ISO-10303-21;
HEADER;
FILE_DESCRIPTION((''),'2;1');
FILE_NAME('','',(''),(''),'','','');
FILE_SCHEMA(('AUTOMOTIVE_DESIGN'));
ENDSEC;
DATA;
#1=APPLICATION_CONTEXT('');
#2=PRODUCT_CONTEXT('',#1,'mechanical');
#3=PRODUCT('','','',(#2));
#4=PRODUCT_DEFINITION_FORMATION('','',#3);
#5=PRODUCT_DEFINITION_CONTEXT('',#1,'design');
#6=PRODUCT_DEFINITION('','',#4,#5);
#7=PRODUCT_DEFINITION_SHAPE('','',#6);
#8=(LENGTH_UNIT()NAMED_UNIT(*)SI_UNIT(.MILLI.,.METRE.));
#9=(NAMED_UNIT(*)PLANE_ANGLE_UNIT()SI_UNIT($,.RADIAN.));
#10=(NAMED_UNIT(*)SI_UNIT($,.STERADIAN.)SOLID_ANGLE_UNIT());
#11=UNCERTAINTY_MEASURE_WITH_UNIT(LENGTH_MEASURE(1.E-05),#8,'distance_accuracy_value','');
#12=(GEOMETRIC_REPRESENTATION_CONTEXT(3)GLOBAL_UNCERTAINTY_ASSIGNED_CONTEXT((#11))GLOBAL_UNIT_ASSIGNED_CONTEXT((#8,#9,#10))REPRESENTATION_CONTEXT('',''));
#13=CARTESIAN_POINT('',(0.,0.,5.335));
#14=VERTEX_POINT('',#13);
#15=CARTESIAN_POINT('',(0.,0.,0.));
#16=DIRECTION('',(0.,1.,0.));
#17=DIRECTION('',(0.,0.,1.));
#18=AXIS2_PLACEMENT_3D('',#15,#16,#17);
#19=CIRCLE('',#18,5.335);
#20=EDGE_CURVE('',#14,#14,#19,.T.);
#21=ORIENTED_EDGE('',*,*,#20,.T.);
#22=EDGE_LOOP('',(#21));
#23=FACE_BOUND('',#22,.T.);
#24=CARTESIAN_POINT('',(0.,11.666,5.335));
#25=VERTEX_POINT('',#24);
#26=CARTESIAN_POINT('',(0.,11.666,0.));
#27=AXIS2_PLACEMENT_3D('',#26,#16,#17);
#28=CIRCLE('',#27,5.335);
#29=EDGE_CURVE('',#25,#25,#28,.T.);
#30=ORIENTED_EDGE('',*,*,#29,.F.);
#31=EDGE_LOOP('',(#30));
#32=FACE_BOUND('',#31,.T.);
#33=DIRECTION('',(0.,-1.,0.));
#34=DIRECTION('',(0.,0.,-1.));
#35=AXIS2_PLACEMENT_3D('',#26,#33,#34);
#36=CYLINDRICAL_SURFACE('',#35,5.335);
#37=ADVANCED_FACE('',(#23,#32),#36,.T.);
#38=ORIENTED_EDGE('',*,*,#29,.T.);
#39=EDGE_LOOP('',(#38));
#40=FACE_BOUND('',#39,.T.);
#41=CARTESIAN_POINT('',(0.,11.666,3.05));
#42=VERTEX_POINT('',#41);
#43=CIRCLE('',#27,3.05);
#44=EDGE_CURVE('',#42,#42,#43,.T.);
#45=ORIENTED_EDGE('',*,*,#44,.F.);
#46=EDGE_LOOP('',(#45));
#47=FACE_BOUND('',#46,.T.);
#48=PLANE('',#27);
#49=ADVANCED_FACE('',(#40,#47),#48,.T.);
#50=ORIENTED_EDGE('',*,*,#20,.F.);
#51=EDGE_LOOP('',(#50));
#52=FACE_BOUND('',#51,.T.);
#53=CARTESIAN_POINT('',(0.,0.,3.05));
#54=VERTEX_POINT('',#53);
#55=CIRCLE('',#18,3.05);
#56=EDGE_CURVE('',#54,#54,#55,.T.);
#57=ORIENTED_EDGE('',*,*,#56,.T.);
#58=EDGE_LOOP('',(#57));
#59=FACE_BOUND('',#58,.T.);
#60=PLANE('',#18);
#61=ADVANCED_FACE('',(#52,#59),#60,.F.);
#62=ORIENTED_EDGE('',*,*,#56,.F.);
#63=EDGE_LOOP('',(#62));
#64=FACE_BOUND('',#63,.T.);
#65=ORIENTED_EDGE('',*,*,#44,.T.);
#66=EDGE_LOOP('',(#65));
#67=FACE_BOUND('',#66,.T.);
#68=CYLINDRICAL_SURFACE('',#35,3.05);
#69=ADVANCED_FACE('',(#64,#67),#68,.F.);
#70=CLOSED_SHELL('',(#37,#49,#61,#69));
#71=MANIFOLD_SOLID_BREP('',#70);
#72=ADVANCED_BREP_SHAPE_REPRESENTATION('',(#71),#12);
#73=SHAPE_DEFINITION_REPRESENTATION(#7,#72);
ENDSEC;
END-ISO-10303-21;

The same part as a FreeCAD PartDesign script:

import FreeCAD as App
import Part
import Sketcher

V = App.Vector

doc = App.newDocument("Part")
params = doc.addObject("Spreadsheet::Sheet", "Params")
for row, (alias, value) in enumerate([
    ("sketch1_diameter", "6.1 mm"),
    ("sketch1_diameter2", "10.67 mm"),
    ("pad1_length", "11.666 mm"),
], start=1):
    params.set(f"A{row}", alias)
    params.set(f"B{row}", "=" + value)
    params.setAlias(f"B{row}", alias)

body = doc.addObject("PartDesign::Body", "Body")

# Sketch on XZ plane
sketch1 = doc.addObject("Sketcher::SketchObject", "Sketch")
body.addObject(sketch1)
sketch1.AttachmentSupport = (doc.XZ_Plane, [""])
sketch1.MapMode = "FlatFace"
sketch1.addGeometry(Part.Circle(V(0, 0, 0), V(0, 0, 1), 5.3), False)
sketch1.addGeometry(Part.Circle(V(0, 0, 0), V(0, 0, 1), 3), False)
sketch1.addConstraint(Sketcher.Constraint("Coincident", 0, 3, -1, 1))
sketch1.addConstraint(Sketcher.Constraint("Coincident", 1, 3, -1, 1))
sketch1.addConstraint(Sketcher.Constraint("Diameter", 1, 6.1))
sketch1.addConstraint(Sketcher.Constraint("Diameter", 0, 10.67))
sketch1.setExpression("Constraints[2]", "Params.sketch1_diameter")
sketch1.setExpression("Constraints[3]", "Params.sketch1_diameter2")
pad1 = doc.addObject("PartDesign::Pad", "Pad")
body.addObject(pad1)
pad1.Profile = sketch1
pad1.setExpression("Length", "Params.pad1_length")
pad1.Reversed = True

doc.recompute()
